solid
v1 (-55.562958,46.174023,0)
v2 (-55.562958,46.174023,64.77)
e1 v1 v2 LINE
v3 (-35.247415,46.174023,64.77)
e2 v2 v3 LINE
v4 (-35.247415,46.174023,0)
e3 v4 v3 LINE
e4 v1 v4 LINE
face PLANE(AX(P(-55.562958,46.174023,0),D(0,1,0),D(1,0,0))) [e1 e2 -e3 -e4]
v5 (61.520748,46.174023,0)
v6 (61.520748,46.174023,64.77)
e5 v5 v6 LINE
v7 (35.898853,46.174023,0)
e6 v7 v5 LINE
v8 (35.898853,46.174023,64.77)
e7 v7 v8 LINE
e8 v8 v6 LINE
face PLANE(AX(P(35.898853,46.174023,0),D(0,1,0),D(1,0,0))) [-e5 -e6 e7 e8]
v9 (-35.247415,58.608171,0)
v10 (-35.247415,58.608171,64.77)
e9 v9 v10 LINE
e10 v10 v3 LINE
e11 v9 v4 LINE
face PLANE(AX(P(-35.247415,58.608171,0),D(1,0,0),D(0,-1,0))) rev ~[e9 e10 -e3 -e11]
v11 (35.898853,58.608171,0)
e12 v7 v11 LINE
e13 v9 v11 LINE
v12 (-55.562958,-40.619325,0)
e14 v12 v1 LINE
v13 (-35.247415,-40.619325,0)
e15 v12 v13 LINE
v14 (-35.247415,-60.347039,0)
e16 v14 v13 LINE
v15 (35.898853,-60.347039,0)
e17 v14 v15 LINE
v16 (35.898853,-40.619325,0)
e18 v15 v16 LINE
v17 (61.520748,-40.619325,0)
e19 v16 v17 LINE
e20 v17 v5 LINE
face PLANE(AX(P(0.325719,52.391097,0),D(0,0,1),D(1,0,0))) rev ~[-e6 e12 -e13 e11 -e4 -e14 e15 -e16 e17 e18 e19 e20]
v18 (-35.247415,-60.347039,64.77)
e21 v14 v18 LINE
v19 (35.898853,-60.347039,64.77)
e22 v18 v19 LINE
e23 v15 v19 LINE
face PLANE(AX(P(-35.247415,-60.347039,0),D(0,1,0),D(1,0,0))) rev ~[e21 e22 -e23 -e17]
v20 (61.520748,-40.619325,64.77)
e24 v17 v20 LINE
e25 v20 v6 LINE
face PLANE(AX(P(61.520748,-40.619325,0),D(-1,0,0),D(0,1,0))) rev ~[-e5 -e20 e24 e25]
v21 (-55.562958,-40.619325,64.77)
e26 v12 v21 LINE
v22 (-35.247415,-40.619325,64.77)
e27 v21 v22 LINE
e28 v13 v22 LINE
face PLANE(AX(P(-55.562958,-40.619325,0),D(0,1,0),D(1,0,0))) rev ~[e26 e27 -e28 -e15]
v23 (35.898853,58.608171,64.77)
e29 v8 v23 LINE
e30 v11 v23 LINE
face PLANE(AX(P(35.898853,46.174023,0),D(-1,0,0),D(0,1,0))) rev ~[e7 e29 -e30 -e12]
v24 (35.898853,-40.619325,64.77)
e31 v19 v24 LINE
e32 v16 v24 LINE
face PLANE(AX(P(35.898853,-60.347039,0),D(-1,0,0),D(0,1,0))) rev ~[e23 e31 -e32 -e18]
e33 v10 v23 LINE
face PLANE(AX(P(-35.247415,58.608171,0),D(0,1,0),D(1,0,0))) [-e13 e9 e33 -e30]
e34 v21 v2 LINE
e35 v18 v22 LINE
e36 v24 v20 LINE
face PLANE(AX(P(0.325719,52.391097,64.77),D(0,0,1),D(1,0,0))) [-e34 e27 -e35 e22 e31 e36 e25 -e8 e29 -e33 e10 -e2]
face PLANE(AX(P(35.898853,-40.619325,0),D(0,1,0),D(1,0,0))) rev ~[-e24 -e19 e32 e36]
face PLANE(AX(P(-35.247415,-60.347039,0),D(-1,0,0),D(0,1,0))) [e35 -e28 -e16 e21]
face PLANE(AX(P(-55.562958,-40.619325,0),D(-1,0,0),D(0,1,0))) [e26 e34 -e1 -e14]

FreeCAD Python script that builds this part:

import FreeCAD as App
import Part
import Sketcher

V = App.Vector


def add_polygon(sketch, points):
    """Adds a closed chain of lines whose ends are joined by coincident constraints."""
    first, n = sketch.GeometryCount, len(points)
    for a, b in zip(points, points[1:] + points[:1]):
        sketch.addGeometry(Part.LineSegment(App.Vector(*a, 0), App.Vector(*b, 0)), False)
    for i in range(n):
        sketch.addConstraint(Sketcher.Constraint("Coincident", first + i, 2, first + (i + 1) % n, 1))

doc = App.newDocument("Part")
params = doc.addObject("Spreadsheet::Sheet", "Params")
for row, (alias, value) in enumerate([
    ("pad1_length", "2.55 in"),
], start=1):
    params.set(f"A{row}", alias)
    params.set(f"B{row}", "=" + value)
    params.setAlias(f"B{row}", alias)

body = doc.addObject("PartDesign::Body", "Body")

# Sketch on XY plane
sketch1 = body.newObject("Sketcher::SketchObject", "Sketch")
sketch1.AttachmentSupport = (doc.getObject("XY_Plane"), [""])
sketch1.MapMode = "FlatFace"
add_polygon(sketch1, [(-35, 59), (-35, 46), (-56, 46), (-56, -41), (-35, -41), (-35, -60), (36, -60), (36, -41), (62, -41), (62, 46), (36, 46), (36, 59)])  # lines 0-11
sketch1.addConstraint([
    Sketcher.Constraint("Vertical", 0),
    Sketcher.Constraint("Horizontal", 1),
    Sketcher.Constraint("Vertical", 2),
    Sketcher.Constraint("Horizontal", 3),
    Sketcher.Constraint("Vertical", 4),
    Sketcher.Constraint("Horizontal", 5),
    Sketcher.Constraint("Vertical", 6),
    Sketcher.Constraint("Horizontal", 7),
    Sketcher.Constraint("Vertical", 8),
    Sketcher.Constraint("Horizontal", 9),
    Sketcher.Constraint("Vertical", 10),
    Sketcher.Constraint("Horizontal", 11),
    Sketcher.Constraint("Horizontal", 3, 2, 6, 2),
    Sketcher.Constraint("Horizontal", 1, 2, 8, 2),
    Sketcher.Constraint("Vertical", 0, 2, 3, 2),
    Sketcher.Constraint("Vertical", 6, 2, 9, 2),
    Sketcher.Constraint("DistanceX", 5, 1, 5, 2, 71.146268),
    Sketcher.Constraint("DistanceY", 2, 2, 2, 1, 86.793348),
    Sketcher.Constraint("DistanceX", 1, 2, 1, 1, 20.315543),
    Sketcher.Constraint("DistanceX", 7, 1, 7, 2, 25.621895),
    Sketcher.Constraint("DistanceY", 0, 2, 0, 1, 12.434147),
    Sketcher.Constraint("DistanceY", 4, 2, 4, 1, 19.727714),
    Sketcher.Constraint("DistanceX", 1, 2, -1, 1, 55.562958),
    Sketcher.Constraint("DistanceY", 4, 2, -1, 1, 60.347039),
])
pad1 = body.newObject("PartDesign::Pad", "Pad")
pad1.Profile = sketch1
pad1.setExpression("Length", "Params.pad1_length")

doc.recompute()
